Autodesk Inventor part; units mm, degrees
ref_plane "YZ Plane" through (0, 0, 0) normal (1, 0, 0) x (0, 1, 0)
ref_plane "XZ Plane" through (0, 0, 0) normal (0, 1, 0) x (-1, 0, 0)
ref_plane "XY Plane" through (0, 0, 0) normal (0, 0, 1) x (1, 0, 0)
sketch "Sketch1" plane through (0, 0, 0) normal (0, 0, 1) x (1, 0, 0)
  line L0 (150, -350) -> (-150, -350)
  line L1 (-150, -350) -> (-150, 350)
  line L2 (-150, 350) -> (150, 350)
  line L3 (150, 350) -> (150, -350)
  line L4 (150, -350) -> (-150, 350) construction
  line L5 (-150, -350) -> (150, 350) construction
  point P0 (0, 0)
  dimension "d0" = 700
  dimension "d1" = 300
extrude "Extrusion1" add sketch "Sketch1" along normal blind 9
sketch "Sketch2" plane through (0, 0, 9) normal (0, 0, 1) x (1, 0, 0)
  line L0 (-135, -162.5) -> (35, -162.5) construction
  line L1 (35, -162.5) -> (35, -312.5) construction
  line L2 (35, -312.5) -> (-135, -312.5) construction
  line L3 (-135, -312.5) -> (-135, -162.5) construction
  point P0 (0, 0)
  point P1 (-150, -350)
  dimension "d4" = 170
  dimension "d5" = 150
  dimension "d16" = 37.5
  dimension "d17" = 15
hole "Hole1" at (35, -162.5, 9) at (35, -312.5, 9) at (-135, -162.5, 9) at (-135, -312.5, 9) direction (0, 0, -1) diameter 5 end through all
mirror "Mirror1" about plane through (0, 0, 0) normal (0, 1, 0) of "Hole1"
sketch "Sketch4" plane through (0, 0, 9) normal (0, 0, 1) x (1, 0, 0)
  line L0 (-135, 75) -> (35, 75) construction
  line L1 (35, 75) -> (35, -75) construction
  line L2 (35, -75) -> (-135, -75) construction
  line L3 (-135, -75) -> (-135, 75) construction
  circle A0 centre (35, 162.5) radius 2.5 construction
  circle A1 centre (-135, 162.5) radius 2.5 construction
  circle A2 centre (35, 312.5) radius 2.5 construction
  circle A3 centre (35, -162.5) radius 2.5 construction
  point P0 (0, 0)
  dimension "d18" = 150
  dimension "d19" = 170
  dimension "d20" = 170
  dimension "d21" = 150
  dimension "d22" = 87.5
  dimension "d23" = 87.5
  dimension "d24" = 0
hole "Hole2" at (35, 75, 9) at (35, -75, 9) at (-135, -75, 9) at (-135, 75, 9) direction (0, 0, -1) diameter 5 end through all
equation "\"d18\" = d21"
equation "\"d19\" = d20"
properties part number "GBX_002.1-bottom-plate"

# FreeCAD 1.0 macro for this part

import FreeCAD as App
import Part
import Sketcher
from FreeCAD import Vector

doc = App.newDocument("Part")
body = doc.addObject("PartDesign::Body", "Body")

# Sketch on XY plane
sketch1 = body.newObject("Sketcher::SketchObject", "Sketch")
sketch1.AttachmentSupport = (doc.getObject("XY_Plane"), [""])
sketch1.MapMode = "FlatFace"
sketch1.addGeometry(Part.LineSegment(Vector(-150, -350, 0), Vector(150, -350, 0)), False)
sketch1.addGeometry(Part.LineSegment(Vector(150, -350, 0), Vector(150, 350, 0)), False)
sketch1.addGeometry(Part.LineSegment(Vector(150, 350, 0), Vector(-150, 350, 0)), False)
sketch1.addGeometry(Part.LineSegment(Vector(-150, 350, 0), Vector(-150, -350, 0)), False)
sketch1.addConstraint(Sketcher.Constraint("Coincident", 0, 2, 1, 1))
sketch1.addConstraint(Sketcher.Constraint("Coincident", 1, 2, 2, 1))
sketch1.addConstraint(Sketcher.Constraint("Coincident", 2, 2, 3, 1))
sketch1.addConstraint(Sketcher.Constraint("Coincident", 3, 2, 0, 1))
sketch1.addConstraint(Sketcher.Constraint("Horizontal", 0))
sketch1.addConstraint(Sketcher.Constraint("Vertical", 1))
sketch1.addConstraint(Sketcher.Constraint("Horizontal", 2))
sketch1.addConstraint(Sketcher.Constraint("Vertical", 3))
sketch1.addConstraint(Sketcher.Constraint("Symmetric", 0, 2, 2, 2, -1, 1))
sketch1.addConstraint(Sketcher.Constraint("DistanceX", 0, 1, 0, 2, 300.0))
sketch1.addConstraint(Sketcher.Constraint("DistanceY", 1, 1, 1, 2, 700.0))
pad1 = body.newObject("PartDesign::Pad", "Pad")
pad1.Profile = sketch1
pad1.Length = 9

# Sketch on XY plane
sketch2 = body.newObject("Sketcher::SketchObject", "Sketch001")
sketch2.AttachmentSupport = (doc.getObject("XY_Plane"), [""])
sketch2.MapMode = "FlatFace"
sketch2.AttachmentOffset = App.Placement(Vector(0, 0, 9), App.Rotation())
sketch2.addGeometry(Part.Circle(Vector(35, -162.5, 0), Vector(0, 0, 1), 2.5), False)
sketch2.addGeometry(Part.Circle(Vector(35, -312.5, 0), Vector(0, 0, 1), 2.5), False)
sketch2.addGeometry(Part.Circle(Vector(-135, -162.5, 0), Vector(0, 0, 1), 2.5), False)
sketch2.addGeometry(Part.Circle(Vector(-135, -312.5, 0), Vector(0, 0, 1), 2.5), False)
sketch2.addConstraint(Sketcher.Constraint("Equal", 0, 1))
sketch2.addConstraint(Sketcher.Constraint("Equal", 1, 2))
sketch2.addConstraint(Sketcher.Constraint("Equal", 2, 3))
sketch2.addConstraint(Sketcher.Constraint("Horizontal", 0, 3, 2, 3))
sketch2.addConstraint(Sketcher.Constraint("Horizontal", 1, 3, 3, 3))
sketch2.addConstraint(Sketcher.Constraint("Vertical", 0, 3, 1, 3))
sketch2.addConstraint(Sketcher.Constraint("Vertical", 2, 3, 3, 3))
sketch2.addConstraint(Sketcher.Constraint("Diameter", 0, 5.0))
sketch2.addConstraint(Sketcher.Constraint("DistanceX", -1, 1, 0, 3, 35.0))
sketch2.addConstraint(Sketcher.Constraint("DistanceX", 2, 3, -1, 1, 135.0))
sketch2.addConstraint(Sketcher.Constraint("DistanceY", 1, 3, 0, 3, 150.0))
sketch2.addConstraint(Sketcher.Constraint("DistanceY", 0, 3, -1, 1, 162.5))
doc.recompute()
hole = body.newObject("PartDesign::Hole", "Hole")
hole.Profile = sketch2
hole.ThreadType = "None"
hole.Diameter = 5
hole.DepthType = "ThroughAll"
doc.recompute()

mirrored = body.newObject("PartDesign::Mirrored", "Mirrored")
mirrored.Originals = [hole]
mirrored.MirrorPlane = (doc.getObject("XZ_Plane"), [""])
body.Tip = mirrored

# Sketch on XY plane
sketch3 = body.newObject("Sketcher::SketchObject", "Sketch002")
sketch3.AttachmentSupport = (doc.getObject("XY_Plane"), [""])
sketch3.MapMode = "FlatFace"
sketch3.AttachmentOffset = App.Placement(Vector(0, 0, 9), App.Rotation())
sketch3.addGeometry(Part.Circle(Vector(35, 75, 0), Vector(0, 0, 1), 2.5), False)
sketch3.addGeometry(Part.Circle(Vector(35, -75, 0), Vector(0, 0, 1), 2.5), False)
sketch3.addGeometry(Part.Circle(Vector(-135, -75, 0), Vector(0, 0, 1), 2.5), False)
sketch3.addGeometry(Part.Circle(Vector(-135, 75, 0), Vector(0, 0, 1), 2.5), False)
sketch3.addConstraint(Sketcher.Constraint("Equal", 0, 1))
sketch3.addConstraint(Sketcher.Constraint("Equal", 1, 2))
sketch3.addConstraint(Sketcher.Constraint("Equal", 2, 3))
sketch3.addConstraint(Sketcher.Constraint("Symmetric", 0, 3, 1, 3, -1))
sketch3.addConstraint(Sketcher.Constraint("Symmetric", 2, 3, 3, 3, -1))
sketch3.addConstraint(Sketcher.Constraint("Horizontal", 1, 3, 2, 3))
sketch3.addConstraint(Sketcher.Constraint("Diameter", 0, 5.0))
sketch3.addConstraint(Sketcher.Constraint("DistanceX", -1, 1, 0, 3, 35.0))
sketch3.addConstraint(Sketcher.Constraint("DistanceY", -1, 1, 0, 3, 75.0))
sketch3.addConstraint(Sketcher.Constraint("DistanceX", 2, 3, -1, 1, 135.0))
doc.recompute()
hole2 = body.newObject("PartDesign::Hole", "Hole001")
hole2.Profile = sketch3
hole2.ThreadType = "None"
hole2.Diameter = 5
hole2.DepthType = "ThroughAll"

doc.recompute()
